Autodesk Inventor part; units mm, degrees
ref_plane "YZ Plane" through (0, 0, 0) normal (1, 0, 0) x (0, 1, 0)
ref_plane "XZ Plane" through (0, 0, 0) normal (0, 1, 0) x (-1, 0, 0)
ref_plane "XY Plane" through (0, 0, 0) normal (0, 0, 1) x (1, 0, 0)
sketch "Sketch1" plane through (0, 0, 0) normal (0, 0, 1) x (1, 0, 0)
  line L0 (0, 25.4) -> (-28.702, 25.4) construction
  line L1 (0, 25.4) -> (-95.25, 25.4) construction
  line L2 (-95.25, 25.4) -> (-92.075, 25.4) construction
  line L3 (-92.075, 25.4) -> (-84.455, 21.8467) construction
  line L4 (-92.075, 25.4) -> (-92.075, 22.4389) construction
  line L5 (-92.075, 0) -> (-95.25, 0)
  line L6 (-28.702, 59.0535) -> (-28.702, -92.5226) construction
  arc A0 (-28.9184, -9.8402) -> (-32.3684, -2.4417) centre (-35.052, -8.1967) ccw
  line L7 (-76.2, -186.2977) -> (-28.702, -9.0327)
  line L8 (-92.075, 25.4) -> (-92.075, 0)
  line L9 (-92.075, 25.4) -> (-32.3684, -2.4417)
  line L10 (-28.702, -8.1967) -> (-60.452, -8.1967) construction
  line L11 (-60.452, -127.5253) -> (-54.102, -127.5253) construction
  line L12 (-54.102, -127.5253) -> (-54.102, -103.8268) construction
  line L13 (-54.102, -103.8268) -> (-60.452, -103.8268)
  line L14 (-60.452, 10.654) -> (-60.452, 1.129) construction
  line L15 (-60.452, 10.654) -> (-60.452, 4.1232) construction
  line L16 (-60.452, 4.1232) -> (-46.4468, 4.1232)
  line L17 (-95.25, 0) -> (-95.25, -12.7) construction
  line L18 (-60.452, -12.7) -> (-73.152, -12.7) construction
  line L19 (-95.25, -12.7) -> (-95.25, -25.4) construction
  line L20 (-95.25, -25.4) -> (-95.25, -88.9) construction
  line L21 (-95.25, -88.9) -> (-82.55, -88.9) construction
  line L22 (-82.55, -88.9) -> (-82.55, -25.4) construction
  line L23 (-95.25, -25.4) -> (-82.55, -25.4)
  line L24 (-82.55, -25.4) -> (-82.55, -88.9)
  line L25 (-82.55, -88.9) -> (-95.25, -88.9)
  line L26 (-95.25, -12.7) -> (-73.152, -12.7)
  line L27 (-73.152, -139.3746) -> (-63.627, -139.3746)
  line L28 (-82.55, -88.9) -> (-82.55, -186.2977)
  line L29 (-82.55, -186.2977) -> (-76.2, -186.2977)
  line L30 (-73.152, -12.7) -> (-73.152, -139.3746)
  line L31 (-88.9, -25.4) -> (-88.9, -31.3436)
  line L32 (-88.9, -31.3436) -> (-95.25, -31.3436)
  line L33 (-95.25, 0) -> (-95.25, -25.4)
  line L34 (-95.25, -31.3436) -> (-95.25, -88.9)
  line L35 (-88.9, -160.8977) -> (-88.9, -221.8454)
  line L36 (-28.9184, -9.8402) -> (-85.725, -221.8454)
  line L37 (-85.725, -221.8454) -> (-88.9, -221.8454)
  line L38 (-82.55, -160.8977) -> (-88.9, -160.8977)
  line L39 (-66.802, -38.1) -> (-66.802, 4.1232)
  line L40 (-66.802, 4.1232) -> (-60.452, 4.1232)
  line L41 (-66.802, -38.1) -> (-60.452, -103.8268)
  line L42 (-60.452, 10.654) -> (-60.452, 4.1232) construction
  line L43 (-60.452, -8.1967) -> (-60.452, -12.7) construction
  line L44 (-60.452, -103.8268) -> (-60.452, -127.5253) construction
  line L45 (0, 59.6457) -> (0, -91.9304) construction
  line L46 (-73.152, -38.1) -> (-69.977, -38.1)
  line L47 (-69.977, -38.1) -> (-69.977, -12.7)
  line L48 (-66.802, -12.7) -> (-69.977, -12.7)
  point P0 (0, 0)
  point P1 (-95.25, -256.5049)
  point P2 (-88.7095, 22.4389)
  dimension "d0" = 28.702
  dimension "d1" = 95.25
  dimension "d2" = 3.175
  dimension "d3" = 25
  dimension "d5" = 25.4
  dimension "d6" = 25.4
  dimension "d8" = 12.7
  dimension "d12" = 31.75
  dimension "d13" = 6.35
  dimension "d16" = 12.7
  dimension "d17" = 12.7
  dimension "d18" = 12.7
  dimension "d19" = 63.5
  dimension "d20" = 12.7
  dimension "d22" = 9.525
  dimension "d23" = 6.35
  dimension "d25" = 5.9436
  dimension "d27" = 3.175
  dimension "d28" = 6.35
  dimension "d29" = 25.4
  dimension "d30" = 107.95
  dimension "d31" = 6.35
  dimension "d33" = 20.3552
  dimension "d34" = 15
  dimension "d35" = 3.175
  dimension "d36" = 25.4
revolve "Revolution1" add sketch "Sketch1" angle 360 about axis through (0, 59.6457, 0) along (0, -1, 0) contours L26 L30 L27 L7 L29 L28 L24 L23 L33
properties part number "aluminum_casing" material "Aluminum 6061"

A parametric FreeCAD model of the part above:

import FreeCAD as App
import Part
import Sketcher
from FreeCAD import Vector
Q = App.Units.Quantity


def add_polygon(sketch, points):
    """Adds a closed chain of lines whose ends are joined by coincident constraints."""
    first, n = sketch.GeometryCount, len(points)
    for a, b in zip(points, points[1:] + points[:1]):
        sketch.addGeometry(Part.LineSegment(App.Vector(*a, 0), App.Vector(*b, 0)), False)
    for i in range(n):
        sketch.addConstraint(Sketcher.Constraint("Coincident", first + i, 2, first + (i + 1) % n, 1))

doc = App.newDocument("Part")
params = doc.addObject("Spreadsheet::Sheet", "Params")
for row, (alias, value) in enumerate([
    ("sketch1_width", "0.5 in"),
    ("sketch1_width2", "0.25 in"),
    ("sketch1_width3", "0.375 in"),
    ("sketch1_width4", "0.87 in"),
    ("revolution_angle", "360 deg"),
], start=1):
    params.set(f"A{row}", alias)
    params.set(f"B{row}", "=" + value)
    params.setAlias(f"B{row}", alias)

body = doc.addObject("PartDesign::Body", "Body")

# Sketch on XY plane
sketch1 = body.newObject("Sketcher::SketchObject", "Sketch")
sketch1.AttachmentSupport = (doc.getObject("XY_Plane"), [""])
sketch1.MapMode = "FlatFace"
add_polygon(sketch1, [(-73.152, -12.7), (-95.25, -12.7), (-95.25, -25.4), (-82.55, -25.4), (-82.55, -186.2977), (-76.2, -186.2977), (-63.627, -139.3746), (-73.152, -139.3746)])  # lines 0-7
sketch1.addConstraint([
    Sketcher.Constraint("Horizontal", 0),
    Sketcher.Constraint("Vertical", 1),
    Sketcher.Constraint("Horizontal", 2),
    Sketcher.Constraint("Vertical", 3),
    Sketcher.Constraint("Horizontal", 4),
    Sketcher.Constraint("Horizontal", 6),
    Sketcher.Constraint("Vertical", 7),
    Sketcher.Constraint("Equal", 2, 1),
    Sketcher.Constraint("DistanceX", 2, 1, 2, 2, Q("0.5 in")),
    Sketcher.Constraint("DistanceY", 1, 2, -1, 1, Q("1 in")),
    Sketcher.Constraint("DistanceX", 4, 1, 4, 2, Q("0.25 in")),
    Sketcher.Constraint("DistanceX", 6, 2, 6, 1, Q("0.375 in")),
    Sketcher.Constraint("DistanceX", 0, 2, -1, 1, Q("3.75 in")),
    Sketcher.Constraint("Angle", 5, Q("75 deg")),
    Sketcher.Constraint("DistanceX", 0, 2, 0, 1, Q("0.87 in")),
    Sketcher.Constraint("DistanceY", 7, 1, 7, 2, Q("4.9872 in")),
])
sketch1.setExpression("Constraints[16]", "Params.sketch1_width")
sketch1.setExpression("Constraints[18]", "Params.sketch1_width2")
sketch1.setExpression("Constraints[19]", "Params.sketch1_width3")
sketch1.setExpression("Constraints[22]", "Params.sketch1_width4")
revolution = body.newObject("PartDesign::Revolution", "Revolution")
revolution.Profile = sketch1
revolution.ReferenceAxis = (sketch1, ["V_Axis"])
revolution.setExpression("Angle", "Params.revolution_angle")

doc.recompute()
